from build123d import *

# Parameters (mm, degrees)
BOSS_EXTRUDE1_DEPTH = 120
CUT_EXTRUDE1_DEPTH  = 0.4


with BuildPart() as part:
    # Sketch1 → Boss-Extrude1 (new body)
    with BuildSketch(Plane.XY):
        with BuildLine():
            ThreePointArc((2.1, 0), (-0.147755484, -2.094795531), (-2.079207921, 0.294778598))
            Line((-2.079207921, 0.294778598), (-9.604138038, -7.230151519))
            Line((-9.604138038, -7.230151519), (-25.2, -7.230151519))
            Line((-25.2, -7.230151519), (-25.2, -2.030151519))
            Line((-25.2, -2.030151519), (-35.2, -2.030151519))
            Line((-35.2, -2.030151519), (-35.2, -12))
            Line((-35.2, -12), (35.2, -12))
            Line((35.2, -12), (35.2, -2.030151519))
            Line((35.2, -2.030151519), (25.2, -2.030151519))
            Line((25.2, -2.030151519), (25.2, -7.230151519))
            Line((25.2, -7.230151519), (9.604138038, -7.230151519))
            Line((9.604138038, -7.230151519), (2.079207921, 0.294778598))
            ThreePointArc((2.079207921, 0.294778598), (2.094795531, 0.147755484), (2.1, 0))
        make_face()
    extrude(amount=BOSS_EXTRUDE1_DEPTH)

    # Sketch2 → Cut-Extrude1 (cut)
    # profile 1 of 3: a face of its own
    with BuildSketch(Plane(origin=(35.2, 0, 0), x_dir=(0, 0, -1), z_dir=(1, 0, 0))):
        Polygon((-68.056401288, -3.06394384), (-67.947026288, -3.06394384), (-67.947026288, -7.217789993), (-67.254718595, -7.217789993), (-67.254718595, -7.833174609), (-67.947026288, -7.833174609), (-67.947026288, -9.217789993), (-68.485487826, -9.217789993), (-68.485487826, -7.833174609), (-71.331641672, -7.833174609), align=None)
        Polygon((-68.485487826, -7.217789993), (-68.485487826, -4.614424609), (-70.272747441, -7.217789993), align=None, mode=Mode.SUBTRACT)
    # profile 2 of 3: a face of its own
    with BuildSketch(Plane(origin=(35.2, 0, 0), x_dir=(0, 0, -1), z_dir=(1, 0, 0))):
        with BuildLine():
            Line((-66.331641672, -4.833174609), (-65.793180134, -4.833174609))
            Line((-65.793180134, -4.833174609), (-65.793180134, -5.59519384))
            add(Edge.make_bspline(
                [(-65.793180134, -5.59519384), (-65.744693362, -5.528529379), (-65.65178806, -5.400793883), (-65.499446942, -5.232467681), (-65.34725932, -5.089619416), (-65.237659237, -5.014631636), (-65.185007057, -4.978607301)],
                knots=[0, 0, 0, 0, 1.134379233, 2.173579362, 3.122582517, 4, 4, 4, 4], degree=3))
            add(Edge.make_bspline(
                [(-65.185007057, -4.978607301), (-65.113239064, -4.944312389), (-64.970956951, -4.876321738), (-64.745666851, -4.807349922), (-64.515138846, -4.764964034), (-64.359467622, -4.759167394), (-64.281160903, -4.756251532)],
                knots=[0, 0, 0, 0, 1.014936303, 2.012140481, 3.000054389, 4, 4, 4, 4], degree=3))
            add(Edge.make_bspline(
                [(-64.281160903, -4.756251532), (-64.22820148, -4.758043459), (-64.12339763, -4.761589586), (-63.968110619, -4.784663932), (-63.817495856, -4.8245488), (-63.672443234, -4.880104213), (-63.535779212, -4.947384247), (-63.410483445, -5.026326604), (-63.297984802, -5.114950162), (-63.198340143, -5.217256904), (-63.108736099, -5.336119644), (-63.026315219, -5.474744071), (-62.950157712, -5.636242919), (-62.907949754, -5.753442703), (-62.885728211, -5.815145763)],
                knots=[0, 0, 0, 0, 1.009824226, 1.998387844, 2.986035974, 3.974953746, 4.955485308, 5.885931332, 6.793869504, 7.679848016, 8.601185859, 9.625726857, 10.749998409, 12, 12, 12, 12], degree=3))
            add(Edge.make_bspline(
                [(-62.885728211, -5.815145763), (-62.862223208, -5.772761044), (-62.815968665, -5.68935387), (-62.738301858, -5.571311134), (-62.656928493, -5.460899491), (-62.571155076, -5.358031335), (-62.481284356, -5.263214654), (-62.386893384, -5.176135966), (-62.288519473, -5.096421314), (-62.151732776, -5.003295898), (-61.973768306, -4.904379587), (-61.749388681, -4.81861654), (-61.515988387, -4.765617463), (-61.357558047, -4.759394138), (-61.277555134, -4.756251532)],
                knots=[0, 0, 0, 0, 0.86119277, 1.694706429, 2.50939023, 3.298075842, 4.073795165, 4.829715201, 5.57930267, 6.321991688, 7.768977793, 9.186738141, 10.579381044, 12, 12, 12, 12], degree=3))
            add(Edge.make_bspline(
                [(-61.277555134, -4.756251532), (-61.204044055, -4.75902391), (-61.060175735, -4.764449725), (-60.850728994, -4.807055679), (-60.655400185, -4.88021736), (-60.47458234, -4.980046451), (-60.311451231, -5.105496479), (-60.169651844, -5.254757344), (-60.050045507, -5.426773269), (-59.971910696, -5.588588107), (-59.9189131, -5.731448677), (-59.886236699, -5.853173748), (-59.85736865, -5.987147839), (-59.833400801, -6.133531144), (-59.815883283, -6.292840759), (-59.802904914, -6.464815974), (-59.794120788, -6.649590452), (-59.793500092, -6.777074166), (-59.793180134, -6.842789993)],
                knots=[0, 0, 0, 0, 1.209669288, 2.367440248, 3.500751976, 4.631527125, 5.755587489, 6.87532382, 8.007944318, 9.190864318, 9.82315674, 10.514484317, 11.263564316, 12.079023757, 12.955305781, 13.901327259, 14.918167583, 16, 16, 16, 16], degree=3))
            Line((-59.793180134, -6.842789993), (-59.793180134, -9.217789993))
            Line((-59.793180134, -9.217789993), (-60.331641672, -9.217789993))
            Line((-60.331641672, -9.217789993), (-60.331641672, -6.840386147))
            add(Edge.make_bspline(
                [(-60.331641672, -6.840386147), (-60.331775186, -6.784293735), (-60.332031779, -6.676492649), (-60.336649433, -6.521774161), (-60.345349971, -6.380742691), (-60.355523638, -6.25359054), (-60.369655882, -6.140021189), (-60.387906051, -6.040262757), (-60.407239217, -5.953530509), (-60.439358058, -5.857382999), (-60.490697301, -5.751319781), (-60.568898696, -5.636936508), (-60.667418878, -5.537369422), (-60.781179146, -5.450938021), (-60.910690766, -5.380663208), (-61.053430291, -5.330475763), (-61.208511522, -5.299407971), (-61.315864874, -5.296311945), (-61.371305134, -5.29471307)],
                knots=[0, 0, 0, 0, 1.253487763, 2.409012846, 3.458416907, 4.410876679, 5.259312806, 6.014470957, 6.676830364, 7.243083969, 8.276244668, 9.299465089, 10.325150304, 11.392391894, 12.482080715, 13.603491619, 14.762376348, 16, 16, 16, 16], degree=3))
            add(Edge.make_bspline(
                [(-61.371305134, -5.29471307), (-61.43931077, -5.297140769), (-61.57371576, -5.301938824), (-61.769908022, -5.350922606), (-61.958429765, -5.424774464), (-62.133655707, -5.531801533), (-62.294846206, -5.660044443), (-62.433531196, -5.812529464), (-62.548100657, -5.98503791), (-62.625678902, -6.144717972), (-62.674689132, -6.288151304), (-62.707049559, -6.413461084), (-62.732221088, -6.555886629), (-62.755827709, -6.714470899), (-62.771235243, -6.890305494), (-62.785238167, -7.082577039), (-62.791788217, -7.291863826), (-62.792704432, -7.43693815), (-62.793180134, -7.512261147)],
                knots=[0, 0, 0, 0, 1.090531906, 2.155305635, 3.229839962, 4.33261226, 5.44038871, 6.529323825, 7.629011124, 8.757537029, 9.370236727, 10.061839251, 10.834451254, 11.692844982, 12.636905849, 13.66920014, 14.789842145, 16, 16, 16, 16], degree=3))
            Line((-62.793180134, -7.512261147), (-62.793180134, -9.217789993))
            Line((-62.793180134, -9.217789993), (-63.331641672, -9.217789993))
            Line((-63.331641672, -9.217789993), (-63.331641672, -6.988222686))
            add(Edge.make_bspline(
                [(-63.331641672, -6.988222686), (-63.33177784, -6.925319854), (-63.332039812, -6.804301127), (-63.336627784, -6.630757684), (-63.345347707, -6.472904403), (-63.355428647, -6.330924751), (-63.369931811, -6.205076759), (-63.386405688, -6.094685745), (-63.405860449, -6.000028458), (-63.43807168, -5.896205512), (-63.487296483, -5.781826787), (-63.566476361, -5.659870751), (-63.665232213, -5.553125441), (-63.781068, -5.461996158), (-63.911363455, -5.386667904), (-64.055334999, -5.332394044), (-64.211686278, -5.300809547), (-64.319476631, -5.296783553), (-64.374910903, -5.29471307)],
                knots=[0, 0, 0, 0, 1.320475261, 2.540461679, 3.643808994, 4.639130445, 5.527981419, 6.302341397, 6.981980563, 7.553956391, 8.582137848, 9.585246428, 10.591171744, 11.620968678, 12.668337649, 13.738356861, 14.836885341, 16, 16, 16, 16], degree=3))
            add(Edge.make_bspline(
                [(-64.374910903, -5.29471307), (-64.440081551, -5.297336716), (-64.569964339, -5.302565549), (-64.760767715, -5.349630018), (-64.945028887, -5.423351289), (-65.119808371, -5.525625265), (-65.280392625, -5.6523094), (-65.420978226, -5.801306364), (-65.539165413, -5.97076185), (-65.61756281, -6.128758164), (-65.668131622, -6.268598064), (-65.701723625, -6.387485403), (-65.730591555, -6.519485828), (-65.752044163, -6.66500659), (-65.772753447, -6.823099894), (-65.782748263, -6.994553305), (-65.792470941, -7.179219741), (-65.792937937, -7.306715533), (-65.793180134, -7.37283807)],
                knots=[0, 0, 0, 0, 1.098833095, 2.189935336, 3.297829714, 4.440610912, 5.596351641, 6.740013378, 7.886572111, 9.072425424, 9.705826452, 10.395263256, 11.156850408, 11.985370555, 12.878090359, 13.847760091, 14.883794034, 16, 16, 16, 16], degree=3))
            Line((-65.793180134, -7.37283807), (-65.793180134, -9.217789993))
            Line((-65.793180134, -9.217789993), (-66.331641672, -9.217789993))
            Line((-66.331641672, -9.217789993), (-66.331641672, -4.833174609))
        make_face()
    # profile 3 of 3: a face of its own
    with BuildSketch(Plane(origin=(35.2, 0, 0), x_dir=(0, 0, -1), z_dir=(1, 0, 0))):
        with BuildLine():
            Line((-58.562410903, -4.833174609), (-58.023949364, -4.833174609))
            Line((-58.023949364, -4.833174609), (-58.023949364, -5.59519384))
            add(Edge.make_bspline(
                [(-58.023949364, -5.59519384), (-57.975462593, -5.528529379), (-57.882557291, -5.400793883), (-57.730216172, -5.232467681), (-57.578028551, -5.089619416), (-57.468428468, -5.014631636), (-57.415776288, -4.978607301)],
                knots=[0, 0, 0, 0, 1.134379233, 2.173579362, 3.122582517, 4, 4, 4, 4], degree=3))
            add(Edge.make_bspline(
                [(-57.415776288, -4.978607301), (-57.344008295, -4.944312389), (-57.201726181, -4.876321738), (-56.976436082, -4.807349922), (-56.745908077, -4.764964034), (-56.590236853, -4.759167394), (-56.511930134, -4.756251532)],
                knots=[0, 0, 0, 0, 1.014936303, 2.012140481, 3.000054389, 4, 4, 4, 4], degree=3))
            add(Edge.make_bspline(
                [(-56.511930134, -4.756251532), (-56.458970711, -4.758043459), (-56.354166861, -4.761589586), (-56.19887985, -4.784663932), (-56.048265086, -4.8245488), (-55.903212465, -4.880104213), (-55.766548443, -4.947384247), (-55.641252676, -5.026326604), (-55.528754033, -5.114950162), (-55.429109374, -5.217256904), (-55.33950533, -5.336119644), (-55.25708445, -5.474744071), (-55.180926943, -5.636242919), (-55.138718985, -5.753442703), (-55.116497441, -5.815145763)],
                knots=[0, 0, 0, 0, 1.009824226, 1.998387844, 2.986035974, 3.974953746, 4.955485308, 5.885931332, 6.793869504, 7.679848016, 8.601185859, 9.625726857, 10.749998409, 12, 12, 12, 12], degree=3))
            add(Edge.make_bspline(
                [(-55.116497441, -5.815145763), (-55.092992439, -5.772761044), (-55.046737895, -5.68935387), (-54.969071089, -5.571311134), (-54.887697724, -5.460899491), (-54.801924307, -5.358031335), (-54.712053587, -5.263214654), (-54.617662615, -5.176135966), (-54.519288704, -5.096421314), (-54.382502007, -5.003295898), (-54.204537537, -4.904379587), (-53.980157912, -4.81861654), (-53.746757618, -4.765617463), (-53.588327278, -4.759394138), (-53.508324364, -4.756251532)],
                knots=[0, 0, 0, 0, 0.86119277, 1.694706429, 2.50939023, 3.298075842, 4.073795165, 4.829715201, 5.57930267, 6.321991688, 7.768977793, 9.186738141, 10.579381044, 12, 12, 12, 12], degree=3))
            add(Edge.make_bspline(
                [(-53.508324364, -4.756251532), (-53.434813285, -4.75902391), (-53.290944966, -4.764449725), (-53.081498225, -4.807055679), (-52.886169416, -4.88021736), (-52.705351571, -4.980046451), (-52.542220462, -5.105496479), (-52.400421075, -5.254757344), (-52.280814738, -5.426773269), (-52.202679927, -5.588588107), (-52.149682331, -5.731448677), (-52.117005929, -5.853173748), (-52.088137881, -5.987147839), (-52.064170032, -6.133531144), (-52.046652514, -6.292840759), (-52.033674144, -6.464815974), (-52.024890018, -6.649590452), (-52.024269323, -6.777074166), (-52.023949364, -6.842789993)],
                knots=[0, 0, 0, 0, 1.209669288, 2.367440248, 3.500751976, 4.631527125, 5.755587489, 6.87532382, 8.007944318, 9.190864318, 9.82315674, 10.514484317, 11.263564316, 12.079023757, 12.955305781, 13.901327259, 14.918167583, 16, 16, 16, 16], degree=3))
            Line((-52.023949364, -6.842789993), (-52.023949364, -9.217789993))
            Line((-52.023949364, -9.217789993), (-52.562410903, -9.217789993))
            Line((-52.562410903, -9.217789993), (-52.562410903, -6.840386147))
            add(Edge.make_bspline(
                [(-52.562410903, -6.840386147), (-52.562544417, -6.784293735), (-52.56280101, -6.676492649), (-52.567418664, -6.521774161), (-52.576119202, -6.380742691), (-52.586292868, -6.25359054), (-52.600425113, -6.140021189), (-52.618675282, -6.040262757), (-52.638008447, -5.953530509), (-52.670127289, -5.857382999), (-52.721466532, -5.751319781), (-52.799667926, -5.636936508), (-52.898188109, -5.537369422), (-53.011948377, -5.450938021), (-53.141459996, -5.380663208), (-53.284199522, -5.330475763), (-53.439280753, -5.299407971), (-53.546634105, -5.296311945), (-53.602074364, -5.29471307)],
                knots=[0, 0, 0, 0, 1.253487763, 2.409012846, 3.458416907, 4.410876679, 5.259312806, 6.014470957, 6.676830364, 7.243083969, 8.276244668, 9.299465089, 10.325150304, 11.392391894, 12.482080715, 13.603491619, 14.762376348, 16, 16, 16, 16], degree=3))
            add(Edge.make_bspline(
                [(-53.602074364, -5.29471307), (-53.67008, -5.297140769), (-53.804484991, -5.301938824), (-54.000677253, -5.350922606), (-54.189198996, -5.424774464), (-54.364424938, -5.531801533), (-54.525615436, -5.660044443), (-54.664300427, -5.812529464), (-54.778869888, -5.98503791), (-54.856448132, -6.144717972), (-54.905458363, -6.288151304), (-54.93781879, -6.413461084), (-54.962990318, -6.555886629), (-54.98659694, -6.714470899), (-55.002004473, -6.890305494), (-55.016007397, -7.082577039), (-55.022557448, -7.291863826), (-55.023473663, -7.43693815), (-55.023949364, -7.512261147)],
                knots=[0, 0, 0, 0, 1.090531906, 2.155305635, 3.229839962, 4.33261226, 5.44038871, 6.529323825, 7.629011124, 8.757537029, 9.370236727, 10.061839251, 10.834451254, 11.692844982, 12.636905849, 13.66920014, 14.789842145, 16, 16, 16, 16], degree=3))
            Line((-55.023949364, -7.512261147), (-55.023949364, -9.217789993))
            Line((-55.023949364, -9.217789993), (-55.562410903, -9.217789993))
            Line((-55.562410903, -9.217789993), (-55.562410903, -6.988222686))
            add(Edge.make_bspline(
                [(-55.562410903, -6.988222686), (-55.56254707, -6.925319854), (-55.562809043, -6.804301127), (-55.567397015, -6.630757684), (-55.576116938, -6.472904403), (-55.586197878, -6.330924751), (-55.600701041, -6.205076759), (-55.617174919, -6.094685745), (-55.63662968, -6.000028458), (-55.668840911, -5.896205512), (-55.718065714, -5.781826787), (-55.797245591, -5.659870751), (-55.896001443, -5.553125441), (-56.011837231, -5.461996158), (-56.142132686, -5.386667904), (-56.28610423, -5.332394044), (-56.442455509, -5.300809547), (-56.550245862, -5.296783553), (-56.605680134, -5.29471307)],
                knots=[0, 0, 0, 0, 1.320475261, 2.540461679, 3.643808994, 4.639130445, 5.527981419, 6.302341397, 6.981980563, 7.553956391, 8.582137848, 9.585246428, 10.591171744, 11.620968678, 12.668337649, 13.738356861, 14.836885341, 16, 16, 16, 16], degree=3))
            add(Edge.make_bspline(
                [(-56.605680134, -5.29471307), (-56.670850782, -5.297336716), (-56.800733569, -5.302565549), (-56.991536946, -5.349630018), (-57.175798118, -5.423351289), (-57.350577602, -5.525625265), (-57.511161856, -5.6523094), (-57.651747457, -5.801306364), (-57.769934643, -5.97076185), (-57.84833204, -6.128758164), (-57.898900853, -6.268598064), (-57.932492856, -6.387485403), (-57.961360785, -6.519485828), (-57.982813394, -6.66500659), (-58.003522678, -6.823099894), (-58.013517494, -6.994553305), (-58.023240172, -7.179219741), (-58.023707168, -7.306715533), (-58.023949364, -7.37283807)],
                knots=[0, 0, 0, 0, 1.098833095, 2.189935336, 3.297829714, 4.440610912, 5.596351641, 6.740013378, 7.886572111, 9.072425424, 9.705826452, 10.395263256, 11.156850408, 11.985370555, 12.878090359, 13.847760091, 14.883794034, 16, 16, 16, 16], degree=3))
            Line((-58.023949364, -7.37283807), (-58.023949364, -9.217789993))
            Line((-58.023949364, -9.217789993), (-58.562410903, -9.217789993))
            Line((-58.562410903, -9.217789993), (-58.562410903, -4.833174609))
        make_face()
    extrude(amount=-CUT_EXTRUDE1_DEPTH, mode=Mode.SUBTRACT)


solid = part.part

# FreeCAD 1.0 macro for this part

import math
import FreeCAD as App
import Part
import Sketcher
from FreeCAD import Vector

doc = App.newDocument("Part")
params = doc.addObject("Spreadsheet::Sheet", "Params")
for row, (alias, value) in enumerate([
    ("sketch1_radius", "2.1 mm"),
    ("sketch1_width", "10 mm"),
    ("sketch1_width2", "70.4 mm"),
    ("sketch1_height", "5.2 mm"),
    ("pad1_length", "120 mm"),
    ("pocket1_length", "0.4 mm"),
], start=1):
    params.set(f"A{row}", alias)
    params.set(f"B{row}", "=" + value)
    params.setAlias(f"B{row}", alias)

body = doc.addObject("PartDesign::Body", "Body")

# Sketch on XY plane
sketch1 = doc.addObject("Sketcher::SketchObject", "Sketch")
body.addObject(sketch1)
sketch1.AttachmentSupport = (doc.XY_Plane, [""])
sketch1.MapMode = "FlatFace"
sketch1.addGeometry([
    Part.ArcOfCircle(Part.Circle(Vector(0, 0, 0), Vector(0, 0, 1), 2.1), math.radians(172), math.radians(360)),  # 0
    Part.LineSegment(Vector(-2.08, 0.29, 0), Vector(-9.6, -7.23, 0)),  # 1
    Part.LineSegment(Vector(-9.6, -7.23, 0), Vector(-25.2, -7.23, 0)),  # 2
    Part.LineSegment(Vector(-25.2, -7.23, 0), Vector(-25.2, -2.03, 0)),  # 3
    Part.LineSegment(Vector(-25.2, -2.03, 0), Vector(-35.2, -2.03, 0)),  # 4
    Part.LineSegment(Vector(-35.2, -2.03, 0), Vector(-35.2, -12, 0)),  # 5
    Part.LineSegment(Vector(-35.2, -12, 0), Vector(35.2, -12, 0)),  # 6
    Part.LineSegment(Vector(35.2, -12, 0), Vector(35.2, -2.03, 0)),  # 7
    Part.LineSegment(Vector(35.2, -2.03, 0), Vector(25.2, -2.03, 0)),  # 8
    Part.LineSegment(Vector(25.2, -2.03, 0), Vector(25.2, -7.23, 0)),  # 9
    Part.LineSegment(Vector(25.2, -7.23, 0), Vector(9.6, -7.23, 0)),  # 10
    Part.LineSegment(Vector(9.6, -7.23, 0), Vector(2.08, 0.29, 0)),  # 11
    Part.ArcOfCircle(Part.Circle(Vector(0, 0, 0), Vector(0, 0, 1), 2.1), math.radians(0), math.radians(8.07)),  # 12
], False)
sketch1.addConstraint([
    Sketcher.Constraint("Coincident", 0, 1, 1, 1),
    Sketcher.Constraint("Coincident", 1, 2, 2, 1),
    Sketcher.Constraint("Coincident", 2, 2, 3, 1),
    Sketcher.Constraint("Coincident", 3, 2, 4, 1),
    Sketcher.Constraint("Coincident", 4, 2, 5, 1),
    Sketcher.Constraint("Coincident", 5, 2, 6, 1),
    Sketcher.Constraint("Coincident", 6, 2, 7, 1),
    Sketcher.Constraint("Coincident", 7, 2, 8, 1),
    Sketcher.Constraint("Coincident", 8, 2, 9, 1),
    Sketcher.Constraint("Coincident", 9, 2, 10, 1),
    Sketcher.Constraint("Coincident", 10, 2, 11, 1),
    Sketcher.Constraint("Coincident", 11, 2, 12, 2),
    Sketcher.Constraint("Tangent", 12, 1, 0, 2),
    Sketcher.Constraint("Horizontal", 2),
    Sketcher.Constraint("Vertical", 3),
    Sketcher.Constraint("Horizontal", 4),
    Sketcher.Constraint("Vertical", 5),
    Sketcher.Constraint("Horizontal", 6),
    Sketcher.Constraint("Vertical", 7),
    Sketcher.Constraint("Horizontal", 8),
    Sketcher.Constraint("Vertical", 9),
    Sketcher.Constraint("Horizontal", 10),
    Sketcher.Constraint("Coincident", 0, 3, -1, 1),
    Sketcher.Constraint("Equal", 0, 12),
    Sketcher.Constraint("Symmetric", 4, 2, 7, 2, -2),
    Sketcher.Constraint("Symmetric", 2, 2, 9, 2, -2),
    Sketcher.Constraint("PointOnObject", 12, 1, -1),
    Sketcher.Constraint("Perpendicular", 1, 11),
    Sketcher.Constraint("Horizontal", 0, 1, 11, 2),
    Sketcher.Constraint("Equal", 2, 10),
    Sketcher.Constraint("Radius", 0, 2.1),
    Sketcher.Constraint("DistanceX", 4, 2, 4, 1, 10.0),
    Sketcher.Constraint("DistanceX", 6, 1, 6, 2, 70.4),
    Sketcher.Constraint("DistanceY", 3, 1, 3, 2, 5.2),
    Sketcher.Constraint("DistanceY", 5, 2, -1, 1, 12.0),
    Sketcher.Constraint("DistanceX", 2, 2, 2, 1, 15.595862),
    Sketcher.Constraint("DistanceY", 5, 2, 5, 1, 9.969848),
])
sketch1.setExpression("Constraints[30]", "Params.sketch1_radius")
sketch1.setExpression("Constraints[31]", "Params.sketch1_width")
sketch1.setExpression("Constraints[32]", "Params.sketch1_width2")
sketch1.setExpression("Constraints[33]", "Params.sketch1_height")
pad1 = doc.addObject("PartDesign::Pad", "Pad")
body.addObject(pad1)
pad1.Profile = sketch1
pad1.setExpression("Length", "Params.pad1_length")

# Sketch on YZ plane
sketch2 = doc.addObject("Sketcher::SketchObject", "Sketch001")
body.addObject(sketch2)
sketch2.AttachmentSupport = (doc.YZ_Plane, [""])
sketch2.MapMode = "FlatFace"
sketch2.AttachmentOffset = App.Placement(Vector(0, 0, 35.2), App.Rotation())
sketch2.addGeometry([
    Part.LineSegment(Vector(-3.063944, 67.947026, 0), Vector(-3.063944, 68.056401, 0)),  # 0
    Part.LineSegment(Vector(-3.063944, 68.056401, 0), Vector(-7.833175, 71.331642, 0)),  # 1
    Part.LineSegment(Vector(-7.833175, 71.331642, 0), Vector(-7.833175, 68.485488, 0)),  # 2
    Part.LineSegment(Vector(-7.833175, 68.485488, 0), Vector(-9.21779, 68.485488, 0)),  # 3
    Part.LineSegment(Vector(-9.21779, 68.485488, 0), Vector(-9.21779, 67.947026, 0)),  # 4
    Part.LineSegment(Vector(-9.21779, 67.947026, 0), Vector(-7.833175, 67.947026, 0)),  # 5
    Part.LineSegment(Vector(-7.833175, 67.947026, 0), Vector(-7.833175, 67.254719, 0)),  # 6
    Part.LineSegment(Vector(-7.833175, 67.254719, 0), Vector(-7.21779, 67.254719, 0)),  # 7
    Part.LineSegment(Vector(-7.21779, 67.254719, 0), Vector(-7.21779, 67.947026, 0)),  # 8
    Part.LineSegment(Vector(-7.21779, 67.947026, 0), Vector(-3.063944, 67.947026, 0)),  # 9
    Part.LineSegment(Vector(-7.21779, 68.485488, 0), Vector(-7.21779, 70.272747, 0)),  # 10
    Part.LineSegment(Vector(-7.21779, 70.272747, 0), Vector(-4.614425, 68.485488, 0)),  # 11
    Part.LineSegment(Vector(-4.614425, 68.485488, 0), Vector(-7.21779, 68.485488, 0)),  # 12
    Part.LineSegment(Vector(-4.833175, 65.79318, 0), Vector(-4.833175, 66.331642, 0)),  # 13
    Part.LineSegment(Vector(-4.833175, 66.331642, 0), Vector(-9.21779, 66.331642, 0)),  # 14
    Part.LineSegment(Vector(-9.21779, 66.331642, 0), Vector(-9.21779, 65.79318, 0)),  # 15
    Part.LineSegment(Vector(-9.21779, 65.79318, 0), Vector(-7.372838, 65.79318, 0)),  # 16
    Part.BSplineCurve([Vector(-5.294713, 64.374911, 0), Vector(-5.297337, 64.440082, 0), Vector(-5.302566, 64.569964, 0), Vector(-5.34963, 64.760768, 0), Vector(-5.423351, 64.945029, 0), Vector(-5.525625, 65.119808, 0), Vector(-5.652309, 65.280393, 0), Vector(-5.801306, 65.420978, 0), Vector(-5.970762, 65.539165, 0), Vector(-6.128758, 65.617563, 0), Vector(-6.268598, 65.668132, 0), Vector(-6.387485, 65.701724, 0), Vector(-6.519486, 65.730592, 0), Vector(-6.665007, 65.752044, 0), Vector(-6.8231, 65.772753, 0), Vector(-6.994553, 65.782748, 0), Vector(-7.17922, 65.792471, 0), Vector(-7.306716, 65.792938, 0), Vector(-7.372838, 65.79318, 0)], [4, 1, 1, 1, 1, 1, 1, 1, 1, 1, 1, 1, 1, 1, 1, 1, 4], [0, 1.098833095, 2.189935336, 3.297829714, 4.440610912, 5.596351641, 6.740013378, 7.886572111, 9.072425424, 9.705826452, 10.395263256, 11.156850408, 11.985370555, 12.878090359, 13.847760091, 14.883794034, 16], False, 3, [1, 1, 1, 1, 1, 1, 1, 1, 1, 1, 1, 1, 1, 1, 1, 1, 1, 1, 1], False),  # 17
    Part.BSplineCurve([Vector(-6.988223, 63.331642, 0), Vector(-6.92532, 63.331778, 0), Vector(-6.804301, 63.33204, 0), Vector(-6.630758, 63.336628, 0), Vector(-6.472904, 63.345348, 0), Vector(-6.330925, 63.355429, 0), Vector(-6.205077, 63.369932, 0), Vector(-6.094686, 63.386406, 0), Vector(-6.000028, 63.40586, 0), Vector(-5.896206, 63.438072, 0), Vector(-5.781827, 63.487296, 0), Vector(-5.659871, 63.566476, 0), Vector(-5.553125, 63.665232, 0), Vector(-5.461996, 63.781068, 0), Vector(-5.386668, 63.911363, 0), Vector(-5.332394, 64.055335, 0), Vector(-5.30081, 64.211686, 0), Vector(-5.296784, 64.319477, 0), Vector(-5.294713, 64.374911, 0)], [4, 1, 1, 1, 1, 1, 1, 1, 1, 1, 1, 1, 1, 1, 1, 1, 4], [0, 1.320475261, 2.540461679, 3.643808994, 4.639130445, 5.527981419, 6.302341397, 6.981980563, 7.553956391, 8.582137848, 9.585246428, 10.591171744, 11.620968678, 12.668337649, 13.738356861, 14.836885341, 16], False, 3, [1, 1, 1, 1, 1, 1, 1, 1, 1, 1, 1, 1, 1, 1, 1, 1, 1, 1, 1], False),  # 18
    Part.LineSegment(Vector(-6.988223, 63.331642, 0), Vector(-9.21779, 63.331642, 0)),  # 19
    Part.LineSegment(Vector(-9.21779, 63.331642, 0), Vector(-9.21779, 62.79318, 0)),  # 20
    Part.LineSegment(Vector(-9.21779, 62.79318, 0), Vector(-7.512261, 62.79318, 0)),  # 21
    Part.BSplineCurve([Vector(-5.294713, 61.371305, 0), Vector(-5.297141, 61.439311, 0), Vector(-5.301939, 61.573716, 0), Vector(-5.350923, 61.769908, 0), Vector(-5.424774, 61.95843, 0), Vector(-5.531802, 62.133656, 0), Vector(-5.660044, 62.294846, 0), Vector(-5.812529, 62.433531, 0), Vector(-5.985038, 62.548101, 0), Vector(-6.144718, 62.625679, 0), Vector(-6.288151, 62.674689, 0), Vector(-6.413461, 62.70705, 0), Vector(-6.555887, 62.732221, 0), Vector(-6.714471, 62.755828, 0), Vector(-6.890305, 62.771235, 0), Vector(-7.082577, 62.785238, 0), Vector(-7.291864, 62.791788, 0), Vector(-7.436938, 62.792704, 0), Vector(-7.512261, 62.79318, 0)], [4, 1, 1, 1, 1, 1, 1, 1, 1, 1, 1, 1, 1, 1, 1, 1, 4], [0, 1.090531906, 2.155305635, 3.229839962, 4.33261226, 5.44038871, 6.529323825, 7.629011124, 8.757537029, 9.370236727, 10.061839251, 10.834451254, 11.692844982, 12.636905849, 13.66920014, 14.789842145, 16], False, 3, [1, 1, 1, 1, 1, 1, 1, 1, 1, 1, 1, 1, 1, 1, 1, 1, 1, 1, 1], False),  # 22
    Part.BSplineCurve([Vector(-6.840386, 60.331642, 0), Vector(-6.784294, 60.331775, 0), Vector(-6.676493, 60.332032, 0), Vector(-6.521774, 60.336649, 0), Vector(-6.380743, 60.34535, 0), Vector(-6.253591, 60.355524, 0), Vector(-6.140021, 60.369656, 0), Vector(-6.040263, 60.387906, 0), Vector(-5.953531, 60.407239, 0), Vector(-5.857383, 60.439358, 0), Vector(-5.75132, 60.490697, 0), Vector(-5.636937, 60.568899, 0), Vector(-5.537369, 60.667419, 0), Vector(-5.450938, 60.781179, 0), Vector(-5.380663, 60.910691, 0), Vector(-5.330476, 61.05343, 0), Vector(-5.299408, 61.208512, 0), Vector(-5.296312, 61.315865, 0), Vector(-5.294713, 61.371305, 0)], [4, 1, 1, 1, 1, 1, 1, 1, 1, 1, 1, 1, 1, 1, 1, 1, 4], [0, 1.253487763, 2.409012846, 3.458416907, 4.410876679, 5.259312806, 6.014470957, 6.676830364, 7.243083969, 8.276244668, 9.299465089, 10.325150304, 11.392391894, 12.482080715, 13.603491619, 14.762376348, 16], False, 3, [1, 1, 1, 1, 1, 1, 1, 1, 1, 1, 1, 1, 1, 1, 1, 1, 1, 1, 1], False),  # 23
    Part.LineSegment(Vector(-6.840386, 60.331642, 0), Vector(-9.21779, 60.331642, 0)),  # 24
    Part.LineSegment(Vector(-9.21779, 60.331642, 0), Vector(-9.21779, 59.79318, 0)),  # 25
    Part.LineSegment(Vector(-9.21779, 59.79318, 0), Vector(-6.84279, 59.79318, 0)),  # 26
    Part.BSplineCurve([Vector(-4.756252, 61.277555, 0), Vector(-4.759024, 61.204044, 0), Vector(-4.76445, 61.060176, 0), Vector(-4.807056, 60.850729, 0), Vector(-4.880217, 60.6554, 0), Vector(-4.980046, 60.474582, 0), Vector(-5.105496, 60.311451, 0), Vector(-5.254757, 60.169652, 0), Vector(-5.426773, 60.050046, 0), Vector(-5.588588, 59.971911, 0), Vector(-5.731449, 59.918913, 0), Vector(-5.853174, 59.886237, 0), Vector(-5.987148, 59.857369, 0), Vector(-6.133531, 59.833401, 0), Vector(-6.292841, 59.815883, 0), Vector(-6.464816, 59.802905, 0), Vector(-6.64959, 59.794121, 0), Vector(-6.777074, 59.7935, 0), Vector(-6.84279, 59.79318, 0)], [4, 1, 1, 1, 1, 1, 1, 1, 1, 1, 1, 1, 1, 1, 1, 1, 4], [0, 1.209669288, 2.367440248, 3.500751976, 4.631527125, 5.755587489, 6.87532382, 8.007944318, 9.190864318, 9.82315674, 10.514484317, 11.263564316, 12.079023757, 12.955305781, 13.901327259, 14.918167583, 16], False, 3, [1, 1, 1, 1, 1, 1, 1, 1, 1, 1, 1, 1, 1, 1, 1, 1, 1, 1, 1], False),  # 27
    Part.BSplineCurve([Vector(-5.815146, 62.885728, 0), Vector(-5.772761, 62.862223, 0), Vector(-5.689354, 62.815969, 0), Vector(-5.571311, 62.738302, 0), Vector(-5.460899, 62.656928, 0), Vector(-5.358031, 62.571155, 0), Vector(-5.263215, 62.481284, 0), Vector(-5.176136, 62.386893, 0), Vector(-5.096421, 62.288519, 0), Vector(-5.003296, 62.151733, 0), Vector(-4.90438, 61.973768, 0), Vector(-4.818617, 61.749389, 0), Vector(-4.765617, 61.515988, 0), Vector(-4.759394, 61.357558, 0), Vector(-4.756252, 61.277555, 0)], [4, 1, 1, 1, 1, 1, 1, 1, 1, 1, 1, 1, 4], [0, 0.86119277, 1.694706429, 2.50939023, 3.298075842, 4.073795165, 4.829715201, 5.57930267, 6.321991688, 7.768977793, 9.186738141, 10.579381044, 12], False, 3, [1, 1, 1, 1, 1, 1, 1, 1, 1, 1, 1, 1, 1, 1, 1], False),  # 28
    Part.BSplineCurve([Vector(-4.756252, 64.281161, 0), Vector(-4.758043, 64.228201, 0), Vector(-4.76159, 64.123398, 0), Vector(-4.784664, 63.968111, 0), Vector(-4.824549, 63.817496, 0), Vector(-4.880104, 63.672443, 0), Vector(-4.947384, 63.535779, 0), Vector(-5.026327, 63.410483, 0), Vector(-5.11495, 63.297985, 0), Vector(-5.217257, 63.19834, 0), Vector(-5.33612, 63.108736, 0), Vector(-5.474744, 63.026315, 0), Vector(-5.636243, 62.950158, 0), Vector(-5.753443, 62.90795, 0), Vector(-5.815146, 62.885728, 0)], [4, 1, 1, 1, 1, 1, 1, 1, 1, 1, 1, 1, 4], [0, 1.009824226, 1.998387844, 2.986035974, 3.974953746, 4.955485308, 5.885931332, 6.793869504, 7.679848016, 8.601185859, 9.625726857, 10.749998409, 12], False, 3, [1, 1, 1, 1, 1, 1, 1, 1, 1, 1, 1, 1, 1, 1, 1], False),  # 29
    Part.BSplineCurve([Vector(-4.978607, 65.185007, 0), Vector(-4.944312, 65.113239, 0), Vector(-4.876322, 64.970957, 0), Vector(-4.80735, 64.745667, 0), Vector(-4.764964, 64.515139, 0), Vector(-4.759167, 64.359468, 0), Vector(-4.756252, 64.281161, 0)], [4, 1, 1, 1, 4], [0, 1.014936303, 2.012140481, 3.000054389, 4], False, 3, [1, 1, 1, 1, 1, 1, 1], False),  # 30
    Part.BSplineCurve([Vector(-5.595194, 65.79318, 0), Vector(-5.528529, 65.744693, 0), Vector(-5.400794, 65.651788, 0), Vector(-5.232468, 65.499447, 0), Vector(-5.089619, 65.347259, 0), Vector(-5.014632, 65.237659, 0), Vector(-4.978607, 65.185007, 0)], [4, 1, 1, 1, 4], [0, 1.134379233, 2.173579362, 3.122582517, 4], False, 3, [1, 1, 1, 1, 1, 1, 1], False),  # 31
    Part.LineSegment(Vector(-5.595194, 65.79318, 0), Vector(-4.833175, 65.79318, 0)),  # 32
    Part.LineSegment(Vector(-4.833175, 58.023949, 0), Vector(-4.833175, 58.562411, 0)),  # 33
    Part.LineSegment(Vector(-4.833175, 58.562411, 0), Vector(-9.21779, 58.562411, 0)),  # 34
    Part.LineSegment(Vector(-9.21779, 58.562411, 0), Vector(-9.21779, 58.023949, 0)),  # 35
    Part.LineSegment(Vector(-9.21779, 58.023949, 0), Vector(-7.372838, 58.023949, 0)),  # 36
    Part.BSplineCurve([Vector(-5.294713, 56.60568, 0), Vector(-5.297337, 56.670851, 0), Vector(-5.302566, 56.800734, 0), Vector(-5.34963, 56.991537, 0), Vector(-5.423351, 57.175798, 0), Vector(-5.525625, 57.350578, 0), Vector(-5.652309, 57.511162, 0), Vector(-5.801306, 57.651747, 0), Vector(-5.970762, 57.769935, 0), Vector(-6.128758, 57.848332, 0), Vector(-6.268598, 57.898901, 0), Vector(-6.387485, 57.932493, 0), Vector(-6.519486, 57.961361, 0), Vector(-6.665007, 57.982813, 0), Vector(-6.8231, 58.003523, 0), Vector(-6.994553, 58.013517, 0), Vector(-7.17922, 58.02324, 0), Vector(-7.306716, 58.023707, 0), Vector(-7.372838, 58.023949, 0)], [4, 1, 1, 1, 1, 1, 1, 1, 1, 1, 1, 1, 1, 1, 1, 1, 4], [0, 1.098833095, 2.189935336, 3.297829714, 4.440610912, 5.596351641, 6.740013378, 7.886572111, 9.072425424, 9.705826452, 10.395263256, 11.156850408, 11.985370555, 12.878090359, 13.847760091, 14.883794034, 16], False, 3, [1, 1, 1, 1, 1, 1, 1, 1, 1, 1, 1, 1, 1, 1, 1, 1, 1, 1, 1], False),  # 37
    Part.BSplineCurve([Vector(-6.988223, 55.562411, 0), Vector(-6.92532, 55.562547, 0), Vector(-6.804301, 55.562809, 0), Vector(-6.630758, 55.567397, 0), Vector(-6.472904, 55.576117, 0), Vector(-6.330925, 55.586198, 0), Vector(-6.205077, 55.600701, 0), Vector(-6.094686, 55.617175, 0), Vector(-6.000028, 55.63663, 0), Vector(-5.896206, 55.668841, 0), Vector(-5.781827, 55.718066, 0), Vector(-5.659871, 55.797246, 0), Vector(-5.553125, 55.896001, 0), Vector(-5.461996, 56.011837, 0), Vector(-5.386668, 56.142133, 0), Vector(-5.332394, 56.286104, 0), Vector(-5.30081, 56.442456, 0), Vector(-5.296784, 56.550246, 0), Vector(-5.294713, 56.60568, 0)], [4, 1, 1, 1, 1, 1, 1, 1, 1, 1, 1, 1, 1, 1, 1, 1, 4], [0, 1.320475261, 2.540461679, 3.643808994, 4.639130445, 5.527981419, 6.302341397, 6.981980563, 7.553956391, 8.582137848, 9.585246428, 10.591171744, 11.620968678, 12.668337649, 13.738356861, 14.836885341, 16], False, 3, [1, 1, 1, 1, 1, 1, 1, 1, 1, 1, 1, 1, 1, 1, 1, 1, 1, 1, 1], False),  # 38
    Part.LineSegment(Vector(-6.988223, 55.562411, 0), Vector(-9.21779, 55.562411, 0)),  # 39
    Part.LineSegment(Vector(-9.21779, 55.562411, 0), Vector(-9.21779, 55.023949, 0)),  # 40
    Part.LineSegment(Vector(-9.21779, 55.023949, 0), Vector(-7.512261, 55.023949, 0)),  # 41
    Part.BSplineCurve([Vector(-5.294713, 53.602074, 0), Vector(-5.297141, 53.67008, 0), Vector(-5.301939, 53.804485, 0), Vector(-5.350923, 54.000677, 0), Vector(-5.424774, 54.189199, 0), Vector(-5.531802, 54.364425, 0), Vector(-5.660044, 54.525615, 0), Vector(-5.812529, 54.6643, 0), Vector(-5.985038, 54.77887, 0), Vector(-6.144718, 54.856448, 0), Vector(-6.288151, 54.905458, 0), Vector(-6.413461, 54.937819, 0), Vector(-6.555887, 54.96299, 0), Vector(-6.714471, 54.986597, 0), Vector(-6.890305, 55.002004, 0), Vector(-7.082577, 55.016007, 0), Vector(-7.291864, 55.022557, 0), Vector(-7.436938, 55.023474, 0), Vector(-7.512261, 55.023949, 0)], [4, 1, 1, 1, 1, 1, 1, 1, 1, 1, 1, 1, 1, 1, 1, 1, 4], [0, 1.090531906, 2.155305635, 3.229839962, 4.33261226, 5.44038871, 6.529323825, 7.629011124, 8.757537029, 9.370236727, 10.061839251, 10.834451254, 11.692844982, 12.636905849, 13.66920014, 14.789842145, 16], False, 3, [1, 1, 1, 1, 1, 1, 1, 1, 1, 1, 1, 1, 1, 1, 1, 1, 1, 1, 1], False),  # 42
    Part.BSplineCurve([Vector(-6.840386, 52.562411, 0), Vector(-6.784294, 52.562544, 0), Vector(-6.676493, 52.562801, 0), Vector(-6.521774, 52.567419, 0), Vector(-6.380743, 52.576119, 0), Vector(-6.253591, 52.586293, 0), Vector(-6.140021, 52.600425, 0), Vector(-6.040263, 52.618675, 0), Vector(-5.953531, 52.638008, 0), Vector(-5.857383, 52.670127, 0), Vector(-5.75132, 52.721467, 0), Vector(-5.636937, 52.799668, 0), Vector(-5.537369, 52.898188, 0), Vector(-5.450938, 53.011948, 0), Vector(-5.380663, 53.14146, 0), Vector(-5.330476, 53.2842, 0), Vector(-5.299408, 53.439281, 0), Vector(-5.296312, 53.546634, 0), Vector(-5.294713, 53.602074, 0)], [4, 1, 1, 1, 1, 1, 1, 1, 1, 1, 1, 1, 1, 1, 1, 1, 4], [0, 1.253487763, 2.409012846, 3.458416907, 4.410876679, 5.259312806, 6.014470957, 6.676830364, 7.243083969, 8.276244668, 9.299465089, 10.325150304, 11.392391894, 12.482080715, 13.603491619, 14.762376348, 16], False, 3, [1, 1, 1, 1, 1, 1, 1, 1, 1, 1, 1, 1, 1, 1, 1, 1, 1, 1, 1], False),  # 43
    Part.LineSegment(Vector(-6.840386, 52.562411, 0), Vector(-9.21779, 52.562411, 0)),  # 44
    Part.LineSegment(Vector(-9.21779, 52.562411, 0), Vector(-9.21779, 52.023949, 0)),  # 45
    Part.LineSegment(Vector(-9.21779, 52.023949, 0), Vector(-6.84279, 52.023949, 0)),  # 46
    Part.BSplineCurve([Vector(-4.756252, 53.508324, 0), Vector(-4.759024, 53.434813, 0), Vector(-4.76445, 53.290945, 0), Vector(-4.807056, 53.081498, 0), Vector(-4.880217, 52.886169, 0), Vector(-4.980046, 52.705352, 0), Vector(-5.105496, 52.54222, 0), Vector(-5.254757, 52.400421, 0), Vector(-5.426773, 52.280815, 0), Vector(-5.588588, 52.20268, 0), Vector(-5.731449, 52.149682, 0), Vector(-5.853174, 52.117006, 0), Vector(-5.987148, 52.088138, 0), Vector(-6.133531, 52.06417, 0), Vector(-6.292841, 52.046653, 0), Vector(-6.464816, 52.033674, 0), Vector(-6.64959, 52.02489, 0), Vector(-6.777074, 52.024269, 0), Vector(-6.84279, 52.023949, 0)], [4, 1, 1, 1, 1, 1, 1, 1, 1, 1, 1, 1, 1, 1, 1, 1, 4], [0, 1.209669288, 2.367440248, 3.500751976, 4.631527125, 5.755587489, 6.87532382, 8.007944318, 9.190864318, 9.82315674, 10.514484317, 11.263564316, 12.079023757, 12.955305781, 13.901327259, 14.918167583, 16], False, 3, [1, 1, 1, 1, 1, 1, 1, 1, 1, 1, 1, 1, 1, 1, 1, 1, 1, 1, 1], False),  # 47
    Part.BSplineCurve([Vector(-5.815146, 55.116497, 0), Vector(-5.772761, 55.092992, 0), Vector(-5.689354, 55.046738, 0), Vector(-5.571311, 54.969071, 0), Vector(-5.460899, 54.887698, 0), Vector(-5.358031, 54.801924, 0), Vector(-5.263215, 54.712054, 0), Vector(-5.176136, 54.617663, 0), Vector(-5.096421, 54.519289, 0), Vector(-5.003296, 54.382502, 0), Vector(-4.90438, 54.204538, 0), Vector(-4.818617, 53.980158, 0), Vector(-4.765617, 53.746758, 0), Vector(-4.759394, 53.588327, 0), Vector(-4.756252, 53.508324, 0)], [4, 1, 1, 1, 1, 1, 1, 1, 1, 1, 1, 1, 4], [0, 0.86119277, 1.694706429, 2.50939023, 3.298075842, 4.073795165, 4.829715201, 5.57930267, 6.321991688, 7.768977793, 9.186738141, 10.579381044, 12], False, 3, [1, 1, 1, 1, 1, 1, 1, 1, 1, 1, 1, 1, 1, 1, 1], False),  # 48
    Part.BSplineCurve([Vector(-4.756252, 56.51193, 0), Vector(-4.758043, 56.458971, 0), Vector(-4.76159, 56.354167, 0), Vector(-4.784664, 56.19888, 0), Vector(-4.824549, 56.048265, 0), Vector(-4.880104, 55.903212, 0), Vector(-4.947384, 55.766548, 0), Vector(-5.026327, 55.641253, 0), Vector(-5.11495, 55.528754, 0), Vector(-5.217257, 55.429109, 0), Vector(-5.33612, 55.339505, 0), Vector(-5.474744, 55.257084, 0), Vector(-5.636243, 55.180927, 0), Vector(-5.753443, 55.138719, 0), Vector(-5.815146, 55.116497, 0)], [4, 1, 1, 1, 1, 1, 1, 1, 1, 1, 1, 1, 4], [0, 1.009824226, 1.998387844, 2.986035974, 3.974953746, 4.955485308, 5.885931332, 6.793869504, 7.679848016, 8.601185859, 9.625726857, 10.749998409, 12], False, 3, [1, 1, 1, 1, 1, 1, 1, 1, 1, 1, 1, 1, 1, 1, 1], False),  # 49
    Part.BSplineCurve([Vector(-4.978607, 57.415776, 0), Vector(-4.944312, 57.344008, 0), Vector(-4.876322, 57.201726, 0), Vector(-4.80735, 56.976436, 0), Vector(-4.764964, 56.745908, 0), Vector(-4.759167, 56.590237, 0), Vector(-4.756252, 56.51193, 0)], [4, 1, 1, 1, 4], [0, 1.014936303, 2.012140481, 3.000054389, 4], False, 3, [1, 1, 1, 1, 1, 1, 1], False),  # 50
    Part.BSplineCurve([Vector(-5.595194, 58.023949, 0), Vector(-5.528529, 57.975463, 0), Vector(-5.400794, 57.882557, 0), Vector(-5.232468, 57.730216, 0), Vector(-5.089619, 57.578029, 0), Vector(-5.014632, 57.468428, 0), Vector(-4.978607, 57.415776, 0)], [4, 1, 1, 1, 4], [0, 1.134379233, 2.173579362, 3.122582517, 4], False, 3, [1, 1, 1, 1, 1, 1, 1], False),  # 51
    Part.LineSegment(Vector(-5.595194, 58.023949, 0), Vector(-4.833175, 58.023949, 0)),  # 52
], False)
sketch2.addConstraint([
    Sketcher.Constraint("Block", 17),
    Sketcher.Constraint("Block", 18),
    Sketcher.Constraint("Block", 22),
    Sketcher.Constraint("Block", 23),
    Sketcher.Constraint("Block", 27),
    Sketcher.Constraint("Block", 28),
    Sketcher.Constraint("Block", 29),
    Sketcher.Constraint("Block", 30),
    Sketcher.Constraint("Block", 31),
    Sketcher.Constraint("Block", 37),
    Sketcher.Constraint("Block", 38),
    Sketcher.Constraint("Block", 42),
    Sketcher.Constraint("Block", 43),
    Sketcher.Constraint("Block", 47),
    Sketcher.Constraint("Block", 48),
    Sketcher.Constraint("Block", 49),
    Sketcher.Constraint("Block", 50),
    Sketcher.Constraint("Block", 51),
    Sketcher.Constraint("Coincident", 0, 2, 1, 1),
    Sketcher.Constraint("Coincident", 1, 2, 2, 1),
    Sketcher.Constraint("Coincident", 2, 2, 3, 1),
    Sketcher.Constraint("Coincident", 3, 2, 4, 1),
    Sketcher.Constraint("Coincident", 4, 2, 5, 1),
    Sketcher.Constraint("Coincident", 5, 2, 6, 1),
    Sketcher.Constraint("Coincident", 6, 2, 7, 1),
    Sketcher.Constraint("Coincident", 7, 2, 8, 1),
    Sketcher.Constraint("Coincident", 8, 2, 9, 1),
    Sketcher.Constraint("Coincident", 9, 2, 0, 1),
    Sketcher.Constraint("Coincident", 10, 2, 11, 1),
    Sketcher.Constraint("Coincident", 11, 2, 12, 1),
    Sketcher.Constraint("Coincident", 12, 2, 10, 1),
    Sketcher.Constraint("Coincident", 13, 2, 14, 1),
    Sketcher.Constraint("Coincident", 14, 2, 15, 1),
    Sketcher.Constraint("Coincident", 15, 2, 16, 1),
    Sketcher.Constraint("Coincident", 16, 2, 17, 2),
    Sketcher.Constraint("Coincident", 18, 1, 19, 1),
    Sketcher.Constraint("Coincident", 19, 2, 20, 1),
    Sketcher.Constraint("Coincident", 20, 2, 21, 1),
    Sketcher.Constraint("Coincident", 21, 2, 22, 2),
    Sketcher.Constraint("Coincident", 23, 1, 24, 1),
    Sketcher.Constraint("Coincident", 24, 2, 25, 1),
    Sketcher.Constraint("Coincident", 25, 2, 26, 1),
    Sketcher.Constraint("Coincident", 26, 2, 27, 2),
    Sketcher.Constraint("Coincident", 31, 1, 32, 1),
    Sketcher.Constraint("Coincident", 32, 2, 13, 1),
    Sketcher.Constraint("Coincident", 33, 2, 34, 1),
    Sketcher.Constraint("Coincident", 34, 2, 35, 1),
    Sketcher.Constraint("Coincident", 35, 2, 36, 1),
    Sketcher.Constraint("Coincident", 36, 2, 37, 2),
    Sketcher.Constraint("Coincident", 38, 1, 39, 1),
    Sketcher.Constraint("Coincident", 39, 2, 40, 1),
    Sketcher.Constraint("Coincident", 40, 2, 41, 1),
    Sketcher.Constraint("Coincident", 41, 2, 42, 2),
    Sketcher.Constraint("Coincident", 43, 1, 44, 1),
    Sketcher.Constraint("Coincident", 44, 2, 45, 1),
    Sketcher.Constraint("Coincident", 45, 2, 46, 1),
    Sketcher.Constraint("Coincident", 46, 2, 47, 2),
    Sketcher.Constraint("Coincident", 51, 1, 52, 1),
    Sketcher.Constraint("Coincident", 52, 2, 33, 1),
    Sketcher.Constraint("Vertical", 0),
    Sketcher.Constraint("Vertical", 2),
    Sketcher.Constraint("Horizontal", 3),
    Sketcher.Constraint("Vertical", 4),
    Sketcher.Constraint("Horizontal", 5),
    Sketcher.Constraint("Vertical", 6),
    Sketcher.Constraint("Horizontal", 7),
    Sketcher.Constraint("Vertical", 8),
    Sketcher.Constraint("Horizontal", 9),
    Sketcher.Constraint("Vertical", 10),
    Sketcher.Constraint("Horizontal", 12),
    Sketcher.Constraint("Vertical", 13),
    Sketcher.Constraint("Horizontal", 14),
    Sketcher.Constraint("Vertical", 15),
    Sketcher.Constraint("Horizontal", 16),
    Sketcher.Constraint("Horizontal", 19),
    Sketcher.Constraint("Vertical", 20),
    Sketcher.Constraint("Horizontal", 21),
    Sketcher.Constraint("Horizontal", 24),
    Sketcher.Constraint("Vertical", 25),
    Sketcher.Constraint("Horizontal", 26),
    Sketcher.Constraint("Horizontal", 32),
    Sketcher.Constraint("Vertical", 33),
    Sketcher.Constraint("Horizontal", 34),
    Sketcher.Constraint("Vertical", 35),
    Sketcher.Constraint("Horizontal", 36),
    Sketcher.Constraint("Horizontal", 39),
    Sketcher.Constraint("Vertical", 40),
    Sketcher.Constraint("Horizontal", 41),
    Sketcher.Constraint("Horizontal", 44),
    Sketcher.Constraint("Vertical", 45),
    Sketcher.Constraint("Horizontal", 46),
    Sketcher.Constraint("Horizontal", 52),
    Sketcher.Constraint("DistanceX", 4, 2, 7, 2, 2.0),
    Sketcher.Constraint("DistanceX", 3, 2, 10, 2, 2.0),
    Sketcher.Constraint("DistanceX", 14, 2, 7, 2, 2.0),
    Sketcher.Constraint("DistanceY", 19, 2, 14, 2, 3.0),
    Sketcher.Constraint("DistanceX", 19, 2, 7, 2, 2.0),
    Sketcher.Constraint("DistanceY", 39, 2, 34, 2, 3.0),
    Sketcher.Constraint("DistanceX", 26, 1, 26, 2, 2.375),
    Sketcher.Constraint("DistanceX", 46, 1, 46, 2, 2.375),
    Sketcher.Constraint("DistanceX", 20, 2, 26, 2, 2.375),
    Sketcher.Constraint("DistanceX", 34, 2, 26, 2, 2.375),
    Sketcher.Constraint("DistanceX", 40, 2, 46, 2, 2.375),
    Sketcher.Constraint("DistanceX", 32, 1, 32, 2, 0.762019),
    Sketcher.Constraint("DistanceX", 52, 1, 52, 2, 0.762019),
    Sketcher.Constraint("DistanceY", 4, 2, 4, 1, 0.538462),
    Sketcher.Constraint("DistanceY", 10, 1, 10, 2, 1.78726),
    Sketcher.Constraint("DistanceY", -1, 1, 0, 2, 68.056401),
    Sketcher.Constraint("DistanceX", 3, 2, 3, 1, 1.384615),
    Sketcher.Constraint("DistanceX", 5, 1, 5, 2, 1.384615),
    Sketcher.Constraint("DistanceX", 9, 1, 9, 2, 4.153846),
    Sketcher.Constraint("DistanceX", 12, 2, 12, 1, 2.603365),
    Sketcher.Constraint("DistanceY", 0, 1, 0, 2, 0.109375),
    Sketcher.Constraint("DistanceY", 2, 2, 2, 1, 2.846154),
    Sketcher.Constraint("DistanceY", 6, 2, 6, 1, 0.692308),
    Sketcher.Constraint("DistanceY", 8, 1, 8, 2, 0.692308),
    Sketcher.Constraint("DistanceY", 2, 2, 10, 2, 1.78726),
])
pocket1 = doc.addObject("PartDesign::Pocket", "Pocket")
body.addObject(pocket1)
pocket1.Profile = sketch2
pocket1.setExpression("Length", "Params.pocket1_length")

doc.recompute()
